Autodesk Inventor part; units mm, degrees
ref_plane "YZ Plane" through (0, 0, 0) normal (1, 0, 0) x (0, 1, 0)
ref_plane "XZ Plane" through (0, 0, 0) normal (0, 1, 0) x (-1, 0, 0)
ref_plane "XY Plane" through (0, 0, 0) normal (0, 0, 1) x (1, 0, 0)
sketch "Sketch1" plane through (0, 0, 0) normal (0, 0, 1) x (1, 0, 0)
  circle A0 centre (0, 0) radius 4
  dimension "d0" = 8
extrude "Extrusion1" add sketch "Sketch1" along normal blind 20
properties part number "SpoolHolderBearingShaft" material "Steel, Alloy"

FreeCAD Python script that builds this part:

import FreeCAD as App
import Part
import Sketcher

V = App.Vector

doc = App.newDocument("Part")
body = doc.addObject("PartDesign::Body", "Body")

# Sketch on XY plane
sketch1 = doc.addObject("Sketcher::SketchObject", "Sketch")
body.addObject(sketch1)
sketch1.AttachmentSupport = (doc.XY_Plane, [""])
sketch1.MapMode = "FlatFace"
sketch1.addGeometry(Part.Circle(V(0, 0, 0), V(0, 0, 1), 4), False)
sketch1.addConstraint(Sketcher.Constraint("Coincident", 0, 3, -1, 1))
sketch1.addConstraint(Sketcher.Constraint("Diameter", 0, 8.0))
pad1 = doc.addObject("PartDesign::Pad", "Pad")
body.addObject(pad1)
pad1.Profile = sketch1
pad1.Length = 20

doc.recompute()
